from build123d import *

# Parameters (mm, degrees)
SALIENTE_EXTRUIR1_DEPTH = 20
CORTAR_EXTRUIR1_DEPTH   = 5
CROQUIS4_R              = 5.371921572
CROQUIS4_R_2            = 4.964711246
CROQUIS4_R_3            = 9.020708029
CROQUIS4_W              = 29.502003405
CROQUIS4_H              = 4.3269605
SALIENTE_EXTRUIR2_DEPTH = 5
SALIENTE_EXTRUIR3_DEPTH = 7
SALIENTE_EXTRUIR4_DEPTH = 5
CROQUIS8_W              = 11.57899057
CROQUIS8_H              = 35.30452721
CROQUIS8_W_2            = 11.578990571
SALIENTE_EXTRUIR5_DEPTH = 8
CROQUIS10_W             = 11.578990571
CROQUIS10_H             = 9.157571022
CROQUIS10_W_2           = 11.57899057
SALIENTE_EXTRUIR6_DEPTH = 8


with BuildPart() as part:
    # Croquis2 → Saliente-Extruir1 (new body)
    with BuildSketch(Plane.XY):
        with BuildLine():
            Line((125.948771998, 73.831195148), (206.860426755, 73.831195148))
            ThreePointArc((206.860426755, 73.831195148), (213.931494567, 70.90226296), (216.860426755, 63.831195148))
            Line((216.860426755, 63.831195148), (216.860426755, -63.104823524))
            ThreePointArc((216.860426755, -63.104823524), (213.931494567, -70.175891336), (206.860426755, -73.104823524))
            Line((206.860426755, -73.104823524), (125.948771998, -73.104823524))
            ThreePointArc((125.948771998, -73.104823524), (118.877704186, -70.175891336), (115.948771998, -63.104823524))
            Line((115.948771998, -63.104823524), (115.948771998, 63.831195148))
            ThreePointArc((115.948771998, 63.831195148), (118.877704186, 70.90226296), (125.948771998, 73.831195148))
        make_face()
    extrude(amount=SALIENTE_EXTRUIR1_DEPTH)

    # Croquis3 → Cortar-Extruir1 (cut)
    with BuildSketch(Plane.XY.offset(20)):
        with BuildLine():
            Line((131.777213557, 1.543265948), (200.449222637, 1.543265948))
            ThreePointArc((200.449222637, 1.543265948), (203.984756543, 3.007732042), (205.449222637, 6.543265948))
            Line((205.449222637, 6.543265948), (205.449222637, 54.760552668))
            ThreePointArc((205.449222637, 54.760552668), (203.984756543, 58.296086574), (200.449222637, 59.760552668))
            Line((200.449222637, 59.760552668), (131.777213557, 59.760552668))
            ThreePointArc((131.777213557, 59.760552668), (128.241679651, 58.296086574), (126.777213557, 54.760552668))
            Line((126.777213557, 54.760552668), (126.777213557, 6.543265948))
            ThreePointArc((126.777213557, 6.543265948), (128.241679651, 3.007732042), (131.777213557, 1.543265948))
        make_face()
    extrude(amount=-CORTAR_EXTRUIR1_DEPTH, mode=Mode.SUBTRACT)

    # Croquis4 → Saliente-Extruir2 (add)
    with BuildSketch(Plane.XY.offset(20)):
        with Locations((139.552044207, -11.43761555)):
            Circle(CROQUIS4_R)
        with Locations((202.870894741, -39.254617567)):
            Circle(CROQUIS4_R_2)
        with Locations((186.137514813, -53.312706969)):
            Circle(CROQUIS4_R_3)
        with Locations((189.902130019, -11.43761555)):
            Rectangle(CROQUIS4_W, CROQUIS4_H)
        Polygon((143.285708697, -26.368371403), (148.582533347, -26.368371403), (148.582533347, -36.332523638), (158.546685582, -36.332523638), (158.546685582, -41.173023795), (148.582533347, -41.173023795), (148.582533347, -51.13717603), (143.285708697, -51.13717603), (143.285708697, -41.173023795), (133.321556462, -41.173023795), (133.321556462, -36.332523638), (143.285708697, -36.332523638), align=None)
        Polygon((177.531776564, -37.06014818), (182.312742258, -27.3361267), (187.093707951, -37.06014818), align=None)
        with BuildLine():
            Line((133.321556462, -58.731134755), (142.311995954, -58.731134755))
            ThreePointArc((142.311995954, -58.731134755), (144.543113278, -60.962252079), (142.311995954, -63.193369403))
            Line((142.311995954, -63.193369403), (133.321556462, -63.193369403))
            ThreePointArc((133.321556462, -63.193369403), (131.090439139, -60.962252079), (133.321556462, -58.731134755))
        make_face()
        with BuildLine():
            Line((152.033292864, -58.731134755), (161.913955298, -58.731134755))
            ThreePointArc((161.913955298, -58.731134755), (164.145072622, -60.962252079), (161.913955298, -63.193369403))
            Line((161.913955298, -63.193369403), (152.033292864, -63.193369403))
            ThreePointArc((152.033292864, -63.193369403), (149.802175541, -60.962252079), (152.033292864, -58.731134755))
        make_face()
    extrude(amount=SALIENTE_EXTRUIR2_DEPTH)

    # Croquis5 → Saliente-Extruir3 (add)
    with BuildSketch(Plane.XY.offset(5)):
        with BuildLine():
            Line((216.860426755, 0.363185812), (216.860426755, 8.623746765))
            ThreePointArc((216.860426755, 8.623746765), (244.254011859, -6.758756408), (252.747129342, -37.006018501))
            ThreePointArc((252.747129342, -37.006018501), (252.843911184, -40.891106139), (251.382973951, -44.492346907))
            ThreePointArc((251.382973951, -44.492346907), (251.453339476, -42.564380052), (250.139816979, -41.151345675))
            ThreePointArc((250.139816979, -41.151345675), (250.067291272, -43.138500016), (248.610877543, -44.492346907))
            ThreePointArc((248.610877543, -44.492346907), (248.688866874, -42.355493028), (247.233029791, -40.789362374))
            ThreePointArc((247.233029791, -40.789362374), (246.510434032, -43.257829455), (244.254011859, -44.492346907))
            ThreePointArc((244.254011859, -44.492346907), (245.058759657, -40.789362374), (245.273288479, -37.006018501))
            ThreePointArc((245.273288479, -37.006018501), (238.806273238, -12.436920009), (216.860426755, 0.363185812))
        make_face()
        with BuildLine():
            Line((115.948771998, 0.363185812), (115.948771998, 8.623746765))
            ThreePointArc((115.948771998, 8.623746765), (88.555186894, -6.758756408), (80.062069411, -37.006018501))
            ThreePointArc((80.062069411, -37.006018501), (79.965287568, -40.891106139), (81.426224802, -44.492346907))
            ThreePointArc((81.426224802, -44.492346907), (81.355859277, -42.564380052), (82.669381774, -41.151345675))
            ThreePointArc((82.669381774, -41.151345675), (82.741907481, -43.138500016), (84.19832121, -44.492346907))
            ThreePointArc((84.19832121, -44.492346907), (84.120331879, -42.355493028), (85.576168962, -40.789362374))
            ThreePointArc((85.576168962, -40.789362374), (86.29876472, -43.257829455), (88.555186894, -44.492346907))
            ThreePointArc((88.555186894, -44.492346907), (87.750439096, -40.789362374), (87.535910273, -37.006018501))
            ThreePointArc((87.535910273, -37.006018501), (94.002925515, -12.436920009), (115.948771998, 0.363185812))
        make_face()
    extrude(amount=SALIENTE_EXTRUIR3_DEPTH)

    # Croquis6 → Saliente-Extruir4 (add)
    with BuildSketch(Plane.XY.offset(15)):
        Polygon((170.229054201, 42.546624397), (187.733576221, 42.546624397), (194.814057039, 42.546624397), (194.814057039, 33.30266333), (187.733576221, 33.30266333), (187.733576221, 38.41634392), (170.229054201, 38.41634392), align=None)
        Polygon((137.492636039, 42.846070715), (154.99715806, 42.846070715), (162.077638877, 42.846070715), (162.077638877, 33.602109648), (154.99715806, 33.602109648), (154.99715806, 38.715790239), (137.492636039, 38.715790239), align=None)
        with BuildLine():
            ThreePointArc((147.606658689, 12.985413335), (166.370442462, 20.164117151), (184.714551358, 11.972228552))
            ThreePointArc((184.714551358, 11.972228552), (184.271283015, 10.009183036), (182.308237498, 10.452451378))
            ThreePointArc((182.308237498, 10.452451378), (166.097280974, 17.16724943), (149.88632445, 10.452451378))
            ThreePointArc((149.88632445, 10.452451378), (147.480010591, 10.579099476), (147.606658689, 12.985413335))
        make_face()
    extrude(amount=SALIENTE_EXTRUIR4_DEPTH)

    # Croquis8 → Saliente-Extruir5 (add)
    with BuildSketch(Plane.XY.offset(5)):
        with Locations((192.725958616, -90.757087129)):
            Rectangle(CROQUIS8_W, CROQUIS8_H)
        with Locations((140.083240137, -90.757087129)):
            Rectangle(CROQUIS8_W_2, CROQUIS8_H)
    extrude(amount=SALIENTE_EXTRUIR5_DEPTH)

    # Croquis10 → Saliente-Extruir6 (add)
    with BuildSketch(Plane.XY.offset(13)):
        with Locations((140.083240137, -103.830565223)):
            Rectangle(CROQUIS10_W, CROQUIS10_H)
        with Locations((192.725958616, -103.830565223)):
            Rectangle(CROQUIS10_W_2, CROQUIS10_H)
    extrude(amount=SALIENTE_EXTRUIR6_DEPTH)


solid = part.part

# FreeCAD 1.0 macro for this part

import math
import FreeCAD as App
import Part
import Sketcher


def add_polygon(sketch, points):
    """Adds a closed chain of lines whose ends are joined by coincident constraints."""
    first, n = sketch.GeometryCount, len(points)
    for a, b in zip(points, points[1:] + points[:1]):
        sketch.addGeometry(Part.LineSegment(App.Vector(*a, 0), App.Vector(*b, 0)), False)
    for i in range(n):
        sketch.addConstraint(Sketcher.Constraint("Coincident", first + i, 2, first + (i + 1) % n, 1))

doc = App.newDocument("Part")
body = doc.addObject("PartDesign::Body", "Body")

sketch1 = body.newObject("Sketcher::SketchObject", "Sketch")
sketch1.AttachmentSupport = (doc.getObject("XY_Plane"), [""])
sketch1.MapMode = "FlatFace"
sketch1.addGeometry(Part.LineSegment(App.Vector(207, 74, 0), App.Vector(126, 74, 0)), False)
sketch1.addGeometry(Part.ArcOfCircle(Part.Circle(App.Vector(126, 64, 0), App.Vector(0, 0, 1), 10), math.radians(90), math.radians(180)), False)
sketch1.addGeometry(Part.LineSegment(App.Vector(116, 64, 0), App.Vector(116, -63, 0)), False)
sketch1.addGeometry(Part.ArcOfCircle(Part.Circle(App.Vector(126, -63, 0), App.Vector(0, 0, 1), 10), math.radians(180), math.radians(270)), False)
sketch1.addGeometry(Part.LineSegment(App.Vector(126, -73, 0), App.Vector(207, -73, 0)), False)
sketch1.addGeometry(Part.ArcOfCircle(Part.Circle(App.Vector(207, -63, 0), App.Vector(0, 0, 1), 10), math.radians(-90), math.radians(0)), False)
sketch1.addGeometry(Part.LineSegment(App.Vector(217, -63, 0), App.Vector(217, 64, 0)), False)
sketch1.addGeometry(Part.ArcOfCircle(Part.Circle(App.Vector(207, 64, 0), App.Vector(0, 0, 1), 10), math.radians(0), math.radians(90)), False)
sketch1.addConstraint(Sketcher.Constraint("Tangent", 0, 2, 1, 1))
sketch1.addConstraint(Sketcher.Constraint("Tangent", 1, 2, 2, 1))
sketch1.addConstraint(Sketcher.Constraint("Tangent", 2, 2, 3, 1))
sketch1.addConstraint(Sketcher.Constraint("Tangent", 3, 2, 4, 1))
sketch1.addConstraint(Sketcher.Constraint("Tangent", 4, 2, 5, 1))
sketch1.addConstraint(Sketcher.Constraint("Tangent", 5, 2, 6, 1))
sketch1.addConstraint(Sketcher.Constraint("Tangent", 6, 2, 7, 1))
sketch1.addConstraint(Sketcher.Constraint("Tangent", 7, 2, 0, 1))
sketch1.addConstraint(Sketcher.Constraint("Horizontal", 0))
sketch1.addConstraint(Sketcher.Constraint("Vertical", 2))
sketch1.addConstraint(Sketcher.Constraint("Horizontal", 4))
sketch1.addConstraint(Sketcher.Constraint("Vertical", 6))
sketch1.addConstraint(Sketcher.Constraint("Equal", 1, 3))
sketch1.addConstraint(Sketcher.Constraint("Equal", 3, 5))
sketch1.addConstraint(Sketcher.Constraint("Equal", 5, 7))
sketch1.addConstraint(Sketcher.Constraint("Radius", 1, 10.0))
sketch1.addConstraint(Sketcher.Constraint("DistanceY", 2, 2, 2, 1, 126.936019))
sketch1.addConstraint(Sketcher.Constraint("DistanceX", 0, 2, 0, 1, 80.911655))
sketch1.addConstraint(Sketcher.Constraint("DistanceX", -1, 1, 1, 3, 125.948772))
sketch1.addConstraint(Sketcher.Constraint("DistanceY", -1, 1, 1, 3, 63.831195))
pad1 = body.newObject("PartDesign::Pad", "Pad")
pad1.Profile = sketch1
pad1.Length = 20

sketch2 = body.newObject("Sketcher::SketchObject", "Sketch001")
sketch2.AttachmentSupport = (doc.getObject("XY_Plane"), [""])
sketch2.MapMode = "FlatFace"
sketch2.AttachmentOffset = App.Placement(App.Vector(0, 0, 20), App.Rotation())
sketch2.addGeometry(Part.LineSegment(App.Vector(132, 2, 0), App.Vector(200, 2, 0)), False)
sketch2.addGeometry(Part.ArcOfCircle(Part.Circle(App.Vector(200, 7, 0), App.Vector(0, 0, 1), 5), math.radians(-90), math.radians(0)), False)
sketch2.addGeometry(Part.LineSegment(App.Vector(205, 7, 0), App.Vector(205, 55, 0)), False)
sketch2.addGeometry(Part.ArcOfCircle(Part.Circle(App.Vector(200, 55, 0), App.Vector(0, 0, 1), 5), math.radians(0), math.radians(90)), False)
sketch2.addGeometry(Part.LineSegment(App.Vector(200, 60, 0), App.Vector(132, 60, 0)), False)
sketch2.addGeometry(Part.ArcOfCircle(Part.Circle(App.Vector(132, 55, 0), App.Vector(0, 0, 1), 5), math.radians(90), math.radians(180)), False)
sketch2.addGeometry(Part.LineSegment(App.Vector(127, 55, 0), App.Vector(127, 7, 0)), False)
sketch2.addGeometry(Part.ArcOfCircle(Part.Circle(App.Vector(132, 7, 0), App.Vector(0, 0, 1), 5), math.radians(180), math.radians(270)), False)
sketch2.addConstraint(Sketcher.Constraint("Tangent", 0, 2, 1, 1))
sketch2.addConstraint(Sketcher.Constraint("Tangent", 1, 2, 2, 1))
sketch2.addConstraint(Sketcher.Constraint("Tangent", 2, 2, 3, 1))
sketch2.addConstraint(Sketcher.Constraint("Tangent", 3, 2, 4, 1))
sketch2.addConstraint(Sketcher.Constraint("Tangent", 4, 2, 5, 1))
sketch2.addConstraint(Sketcher.Constraint("Tangent", 5, 2, 6, 1))
sketch2.addConstraint(Sketcher.Constraint("Tangent", 6, 2, 7, 1))
sketch2.addConstraint(Sketcher.Constraint("Tangent", 7, 2, 0, 1))
sketch2.addConstraint(Sketcher.Constraint("Horizontal", 0))
sketch2.addConstraint(Sketcher.Constraint("Vertical", 2))
sketch2.addConstraint(Sketcher.Constraint("Horizontal", 4))
sketch2.addConstraint(Sketcher.Constraint("Vertical", 6))
sketch2.addConstraint(Sketcher.Constraint("Equal", 1, 3))
sketch2.addConstraint(Sketcher.Constraint("Equal", 3, 5))
sketch2.addConstraint(Sketcher.Constraint("Equal", 5, 7))
sketch2.addConstraint(Sketcher.Constraint("Radius", 1, 5.0))
sketch2.addConstraint(Sketcher.Constraint("DistanceX", 0, 1, 0, 2, 68.672009))
sketch2.addConstraint(Sketcher.Constraint("DistanceY", 2, 1, 2, 2, 48.217287))
sketch2.addConstraint(Sketcher.Constraint("DistanceX", -1, 1, 1, 3, 200.449223))
sketch2.addConstraint(Sketcher.Constraint("DistanceY", -1, 1, 1, 3, 6.543266))
pocket1 = body.newObject("PartDesign::Pocket", "Pocket")
pocket1.Profile = sketch2
pocket1.Length = 5

sketch3 = body.newObject("Sketcher::SketchObject", "Sketch002")
sketch3.AttachmentSupport = (doc.getObject("XY_Plane"), [""])
sketch3.MapMode = "FlatFace"
sketch3.AttachmentOffset = App.Placement(App.Vector(0, 0, 20), App.Rotation())
sketch3.addGeometry(Part.Circle(App.Vector(139.6, -11.4, 0), App.Vector(0, 0, 1), 5.4), False)
sketch3.addGeometry(Part.Circle(App.Vector(202.9, -39.3, 0), App.Vector(0, 0, 1), 5), False)
sketch3.addGeometry(Part.Circle(App.Vector(186.1, -53.3, 0), App.Vector(0, 0, 1), 9), False)
add_polygon(sketch3, [(175.2, -9.3), (175.2, -13.6), (204.7, -13.6), (204.7, -9.3)])
add_polygon(sketch3, [(148.6, -26.4), (143.3, -26.4), (143.3, -36.3), (133.3, -36.3), (133.3, -41.2), (143.3, -41.2), (143.3, -51.1), (148.6, -51.1), (148.6, -41.2), (158.5, -41.2), (158.5, -36.3), (148.6, -36.3)])
add_polygon(sketch3, [(182.3, -27.3), (177.5, -37.1), (187.1, -37.1)])
sketch3.addGeometry(Part.LineSegment(App.Vector(142.3, -58.7, 0), App.Vector(133.3, -58.7, 0)), False)
sketch3.addGeometry(Part.ArcOfCircle(Part.Circle(App.Vector(133.3, -61, 0), App.Vector(0, 0, 1), 2.2), math.radians(90), math.radians(270)), False)
sketch3.addGeometry(Part.LineSegment(App.Vector(133.3, -63.2, 0), App.Vector(142.3, -63.2, 0)), False)
sketch3.addGeometry(Part.ArcOfCircle(Part.Circle(App.Vector(142.3, -61, 0), App.Vector(0, 0, 1), 2.2), math.radians(-90), math.radians(90)), False)
sketch3.addGeometry(Part.LineSegment(App.Vector(161.9, -58.7, 0), App.Vector(152, -58.7, 0)), False)
sketch3.addGeometry(Part.ArcOfCircle(Part.Circle(App.Vector(152, -61, 0), App.Vector(0, 0, 1), 2.2), math.radians(90), math.radians(270)), False)
sketch3.addGeometry(Part.LineSegment(App.Vector(152, -63.2, 0), App.Vector(161.9, -63.2, 0)), False)
sketch3.addGeometry(Part.ArcOfCircle(Part.Circle(App.Vector(161.9, -61, 0), App.Vector(0, 0, 1), 2.2), math.radians(-90), math.radians(90)), False)
sketch3.addConstraint(Sketcher.Constraint("Tangent", 22, 2, 23, 1))
sketch3.addConstraint(Sketcher.Constraint("Tangent", 23, 2, 24, 1))
sketch3.addConstraint(Sketcher.Constraint("Tangent", 24, 2, 25, 1))
sketch3.addConstraint(Sketcher.Constraint("Tangent", 25, 2, 22, 1))
sketch3.addConstraint(Sketcher.Constraint("Tangent", 26, 2, 27, 1))
sketch3.addConstraint(Sketcher.Constraint("Tangent", 27, 2, 28, 1))
sketch3.addConstraint(Sketcher.Constraint("Tangent", 28, 2, 29, 1))
sketch3.addConstraint(Sketcher.Constraint("Tangent", 29, 2, 26, 1))
sketch3.addConstraint(Sketcher.Constraint("Vertical", 3))
sketch3.addConstraint(Sketcher.Constraint("Horizontal", 4))
sketch3.addConstraint(Sketcher.Constraint("Vertical", 5))
sketch3.addConstraint(Sketcher.Constraint("Horizontal", 6))
sketch3.addConstraint(Sketcher.Constraint("Horizontal", 7))
sketch3.addConstraint(Sketcher.Constraint("Vertical", 8))
sketch3.addConstraint(Sketcher.Constraint("Horizontal", 9))
sketch3.addConstraint(Sketcher.Constraint("Vertical", 10))
sketch3.addConstraint(Sketcher.Constraint("Horizontal", 11))
sketch3.addConstraint(Sketcher.Constraint("Vertical", 12))
sketch3.addConstraint(Sketcher.Constraint("Horizontal", 13))
sketch3.addConstraint(Sketcher.Constraint("Vertical", 14))
sketch3.addConstraint(Sketcher.Constraint("Horizontal", 15))
sketch3.addConstraint(Sketcher.Constraint("Vertical", 16))
sketch3.addConstraint(Sketcher.Constraint("Horizontal", 17))
sketch3.addConstraint(Sketcher.Constraint("Vertical", 18))
sketch3.addConstraint(Sketcher.Constraint("Horizontal", 20))
sketch3.addConstraint(Sketcher.Constraint("Horizontal", 22))
sketch3.addConstraint(Sketcher.Constraint("Horizontal", 24))
sketch3.addConstraint(Sketcher.Constraint("Horizontal", 26))
sketch3.addConstraint(Sketcher.Constraint("Horizontal", 28))
sketch3.addConstraint(Sketcher.Constraint("Equal", 25, 27))
sketch3.addConstraint(Sketcher.Constraint("Horizontal", 25, 3, 27, 3))
sketch3.addConstraint(Sketcher.Constraint("Horizontal", 11, 2, 14, 2))
sketch3.addConstraint(Sketcher.Constraint("Horizontal", 9, 2, 16, 2))
sketch3.addConstraint(Sketcher.Constraint("Vertical", 23, 3, 9, 2))
sketch3.addConstraint(Sketcher.Constraint("Vertical", 8, 2, 11, 2))
sketch3.addConstraint(Sketcher.Constraint("Vertical", 14, 2, 17, 2))
sketch3.addConstraint(Sketcher.Constraint("Equal", 11, 15))
sketch3.addConstraint(Sketcher.Constraint("Equal", 17, 8))
sketch3.addConstraint(Sketcher.Constraint("Equal", 8, 12))
sketch3.addConstraint(Sketcher.Constraint("Equal", 19, 21))
sketch3.addConstraint(Sketcher.Constraint("Diameter", 0, 10.743843))
sketch3.addConstraint(Sketcher.Constraint("Diameter", 1, 9.929422))
sketch3.addConstraint(Sketcher.Constraint("Diameter", 2, 18.041416))
sketch3.addConstraint(Sketcher.Constraint("DistanceY", 10, 2, 10, 1, 4.8405))
sketch3.addConstraint(Sketcher.Constraint("Radius", 23, 2.231117))
sketch3.addConstraint(Sketcher.Constraint("DistanceX", 20, 1, 20, 2, 9.561931))
sketch3.addConstraint(Sketcher.Constraint("DistanceX", 22, 2, 22, 1, 8.990439))
sketch3.addConstraint(Sketcher.Constraint("DistanceY", 3, 2, 3, 1, 4.326961))
sketch3.addConstraint(Sketcher.Constraint("DistanceX", 25, 3, 1, 3, 60.558899))
sketch3.addConstraint(Sketcher.Constraint("DistanceX", 27, 3, 1, 3, 50.837602))
sketch3.addConstraint(Sketcher.Constraint("DistanceX", 23, 3, 29, 3, 28.592399))
sketch3.addConstraint(Sketcher.Constraint("DistanceX", 4, 1, 4, 2, 29.502003))
sketch3.addConstraint(Sketcher.Constraint("DistanceX", 7, 2, 7, 1, 5.296825))
sketch3.addConstraint(Sketcher.Constraint("DistanceX", 9, 2, 9, 1, 9.964152))
sketch3.addConstraint(Sketcher.Constraint("DistanceX", -1, 1, 3, 2, 175.151128))
sketch3.addConstraint(Sketcher.Constraint("DistanceX", -1, 1, 7, 2, 143.285709))
sketch3.addConstraint(Sketcher.Constraint("DistanceY", 7, 2, -1, 1, 26.368371))
sketch3.addConstraint(Sketcher.Constraint("DistanceY", 19, 2, -1, 1, 37.060148))
sketch3.addConstraint(Sketcher.Constraint("DistanceY", 23, 2, -1, 1, 63.193369))
sketch3.addConstraint(Sketcher.Constraint("DistanceX", 0, 3, 1, 3, 63.318851))
sketch3.addConstraint(Sketcher.Constraint("DistanceX", 2, 3, 1, 3, 16.73338))
sketch3.addConstraint(Sketcher.Constraint("DistanceY", 2, 3, 1, 3, 14.058089))
sketch3.addConstraint(Sketcher.Constraint("DistanceY", 2, 3, 0, 3, 41.875091))
sketch3.addConstraint(Sketcher.Constraint("DistanceY", 3, 2, 0, 3, 2.16348))
sketch3.addConstraint(Sketcher.Constraint("DistanceY", 8, 2, 0, 3, 24.894908))
sketch3.addConstraint(Sketcher.Constraint("DistanceX", 19, 2, 2, 3, 8.605738))
sketch3.addConstraint(Sketcher.Constraint("DistanceY", 20, 2, 21, 2, 9.724021))
pad2 = body.newObject("PartDesign::Pad", "Pad001")
pad2.Profile = sketch3
pad2.Length = 5

sketch4 = body.newObject("Sketcher::SketchObject", "Sketch003")
sketch4.AttachmentSupport = (doc.getObject("XY_Plane"), [""])
sketch4.MapMode = "FlatFace"
sketch4.AttachmentOffset = App.Placement(App.Vector(0, 0, 5), App.Rotation())
sketch4.addGeometry(Part.LineSegment(App.Vector(216.9, 8.6, 0), App.Vector(216.9, 0.4, 0)), False)
sketch4.addGeometry(Part.ArcOfCircle(Part.Circle(App.Vector(212.4, -32.5, 0), App.Vector(0, 0, 1), 33.2), math.radians(-8), math.radians(82)), False)
sketch4.addGeometry(Part.ArcOfCircle(Part.Circle(App.Vector(221.2, -37.5, 0), App.Vector(0, 0, 1), 24.1), math.radians(-16.77), math.radians(1.26)), False)
sketch4.addGeometry(Part.ArcOfCircle(Part.Circle(App.Vector(243.9, -41.2, 0), App.Vector(0, 0, 1), 3.4), math.radians(-84), math.radians(6)), False)
sketch4.addGeometry(Part.ArcOfCircle(Part.Circle(App.Vector(246.1, -43.3, 0), App.Vector(0, 0, 1), 2.8), math.radians(-25), math.radians(65)), False)
sketch4.addGeometry(Part.ArcOfCircle(Part.Circle(App.Vector(247.7, -42.1, 0), App.Vector(0, 0, 1), 2.6), math.radians(-70), math.radians(20)), False)
sketch4.addGeometry(Part.ArcOfCircle(Part.Circle(App.Vector(249.1, -43.4, 0), App.Vector(0, 0, 1), 2.5), math.radians(-25), math.radians(65)), False)
sketch4.addGeometry(Part.ArcOfCircle(Part.Circle(App.Vector(243.5, -39.2, 0), App.Vector(0, 0, 1), 9.5), math.radians(-34), math.radians(13)), False)
sketch4.addGeometry(Part.ArcOfCircle(Part.Circle(App.Vector(212, -32.1, 0), App.Vector(0, 0, 1), 41), math.radians(-7), math.radians(83)), False)
sketch4.addGeometry(Part.LineSegment(App.Vector(115.9, 0.4, 0), App.Vector(115.9, 8.6, 0)), False)
sketch4.addGeometry(Part.ArcOfCircle(Part.Circle(App.Vector(120.8, -32.1, 0), App.Vector(0, 0, 1), 41), math.radians(97), math.radians(187)), False)
sketch4.addGeometry(Part.ArcOfCircle(Part.Circle(App.Vector(89.3, -39.2, 0), App.Vector(0, 0, 1), 9.5), math.radians(167), math.radians(214)), False)
sketch4.addGeometry(Part.ArcOfCircle(Part.Circle(App.Vector(83.7, -43.4, 0), App.Vector(0, 0, 1), 2.5), math.radians(115), math.radians(205)), False)
sketch4.addGeometry(Part.ArcOfCircle(Part.Circle(App.Vector(85.1, -42.1, 0), App.Vector(0, 0, 1), 2.6), math.radians(160), math.radians(250)), False)
sketch4.addGeometry(Part.ArcOfCircle(Part.Circle(App.Vector(86.7, -43.3, 0), App.Vector(0, 0, 1), 2.8), math.radians(115), math.radians(205)), False)
sketch4.addGeometry(Part.ArcOfCircle(Part.Circle(App.Vector(88.9, -41.2, 0), App.Vector(0, 0, 1), 3.4), math.radians(174), math.radians(264)), False)
sketch4.addGeometry(Part.ArcOfCircle(Part.Circle(App.Vector(111.6, -37.5, 0), App.Vector(0, 0, 1), 24.1), math.radians(178.74), math.radians(196.77)), False)
sketch4.addGeometry(Part.ArcOfCircle(Part.Circle(App.Vector(120.4, -32.5, 0), App.Vector(0, 0, 1), 33.2), math.radians(98), math.radians(188)), False)
sketch4.addConstraint(Sketcher.Constraint("Coincident", 0, 2, 1, 2))
sketch4.addConstraint(Sketcher.Constraint("Coincident", 1, 1, 2, 2))
sketch4.addConstraint(Sketcher.Constraint("Coincident", 2, 1, 3, 1))
sketch4.addConstraint(Sketcher.Constraint("Coincident", 3, 2, 4, 2))
sketch4.addConstraint(Sketcher.Constraint("Coincident", 4, 1, 5, 1))
sketch4.addConstraint(Sketcher.Constraint("Coincident", 5, 2, 6, 2))
sketch4.addConstraint(Sketcher.Constraint("Coincident", 6, 1, 7, 1))
sketch4.addConstraint(Sketcher.Constraint("Coincident", 7, 2, 8, 1))
sketch4.addConstraint(Sketcher.Constraint("Coincident", 8, 2, 0, 1))
sketch4.addConstraint(Sketcher.Constraint("Coincident", 9, 2, 10, 1))
sketch4.addConstraint(Sketcher.Constraint("Coincident", 10, 2, 11, 1))
sketch4.addConstraint(Sketcher.Constraint("Coincident", 11, 2, 12, 2))
sketch4.addConstraint(Sketcher.Constraint("Coincident", 12, 1, 13, 1))
sketch4.addConstraint(Sketcher.Constraint("Coincident", 13, 2, 14, 2))
sketch4.addConstraint(Sketcher.Constraint("Coincident", 14, 1, 15, 1))
sketch4.addConstraint(Sketcher.Constraint("Coincident", 15, 2, 16, 2))
sketch4.addConstraint(Sketcher.Constraint("Coincident", 16, 1, 17, 2))
sketch4.addConstraint(Sketcher.Constraint("Coincident", 17, 1, 9, 1))
sketch4.addConstraint(Sketcher.Constraint("Vertical", 0))
sketch4.addConstraint(Sketcher.Constraint("Vertical", 9))
sketch4.addConstraint(Sketcher.Constraint("Equal", 8, 10))
sketch4.addConstraint(Sketcher.Constraint("Equal", 7, 11))
sketch4.addConstraint(Sketcher.Constraint("Equal", 6, 12))
sketch4.addConstraint(Sketcher.Constraint("Equal", 5, 13))
sketch4.addConstraint(Sketcher.Constraint("Equal", 4, 14))
sketch4.addConstraint(Sketcher.Constraint("Equal", 3, 15))
sketch4.addConstraint(Sketcher.Constraint("Equal", 2, 16))
sketch4.addConstraint(Sketcher.Constraint("Equal", 1, 17))
sketch4.addConstraint(Sketcher.Constraint("Horizontal", 8, 3, 10, 3))
sketch4.addConstraint(Sketcher.Constraint("Horizontal", 7, 3, 11, 3))
sketch4.addConstraint(Sketcher.Constraint("Horizontal", 6, 3, 12, 3))
sketch4.addConstraint(Sketcher.Constraint("Horizontal", 5, 3, 13, 3))
sketch4.addConstraint(Sketcher.Constraint("Horizontal", 4, 3, 14, 3))
sketch4.addConstraint(Sketcher.Constraint("Horizontal", 3, 3, 15, 3))
sketch4.addConstraint(Sketcher.Constraint("Horizontal", 2, 3, 16, 3))
sketch4.addConstraint(Sketcher.Constraint("Horizontal", 1, 3, 17, 3))
sketch4.addConstraint(Sketcher.Constraint("Horizontal", 2, 1, 4, 1))
sketch4.addConstraint(Sketcher.Constraint("Horizontal", 15, 3, 5, 2))
sketch4.addConstraint(Sketcher.Constraint("Horizontal", 4, 1, 6, 1))
sketch4.addConstraint(Sketcher.Constraint("Horizontal", 1, 1, 7, 2))
sketch4.addConstraint(Sketcher.Constraint("Horizontal", 8, 2, 9, 2))
sketch4.addConstraint(Sketcher.Constraint("Horizontal", 7, 2, 10, 2))
sketch4.addConstraint(Sketcher.Constraint("Horizontal", 6, 1, 11, 2))
sketch4.addConstraint(Sketcher.Constraint("Horizontal", 5, 2, 12, 1))
sketch4.addConstraint(Sketcher.Constraint("Horizontal", 11, 2, 13, 2))
sketch4.addConstraint(Sketcher.Constraint("Horizontal", 3, 2, 14, 1))
sketch4.addConstraint(Sketcher.Constraint("Horizontal", 13, 2, 15, 2))
sketch4.addConstraint(Sketcher.Constraint("Horizontal", 10, 2, 16, 1))
sketch4.addConstraint(Sketcher.Constraint("Radius", 1, 33.194489))
sketch4.addConstraint(Sketcher.Constraint("Radius", 5, 2.598071))
sketch4.addConstraint(Sketcher.Constraint("Radius", 8, 41.048331))
sketch4.addConstraint(Sketcher.Constraint("Radius", 2, 24.107054))
sketch4.addConstraint(Sketcher.Constraint("Radius", 3, 3.360554))
sketch4.addConstraint(Sketcher.Constraint("Radius", 4, 2.793793))
sketch4.addConstraint(Sketcher.Constraint("Radius", 6, 2.520687))
sketch4.addConstraint(Sketcher.Constraint("Radius", 7, 9.538693))
sketch4.addConstraint(Sketcher.Constraint("DistanceX", 12, 3, 10, 3, 37.101999))
sketch4.addConstraint(Sketcher.Constraint("DistanceY", 2, 1, 3, 3, 3.341001))
sketch4.addConstraint(Sketcher.Constraint("DistanceX", 3, 3, 3, 2, 3.341001))
sketch4.addConstraint(Sketcher.Constraint("DistanceY", 0, 2, 0, 1, 8.260561))
sketch4.addConstraint(Sketcher.Constraint("DistanceY", 3, 3, 1, 3, 8.623498))
sketch4.addConstraint(Sketcher.Constraint("DistanceY", 4, 3, 5, 3, 1.272402))
sketch4.addConstraint(Sketcher.Constraint("DistanceX", 11, 3, 1, 3, 123.032798))
sketch4.addConstraint(Sketcher.Constraint("DistanceX", 0, 2, 3, 3, 27.031602))
sketch4.addConstraint(Sketcher.Constraint("DistanceX", 3, 2, 7, 2, 5.5141))
sketch4.addConstraint(Sketcher.Constraint("DistanceY", 2, 3, -1, 1, 37.53715))
sketch4.addConstraint(Sketcher.Constraint("DistanceX", -1, 1, 3, 3, 243.892029))
sketch4.addConstraint(Sketcher.Constraint("DistanceX", -1, 1, 4, 3, 246.070461))
sketch4.addConstraint(Sketcher.Constraint("DistanceY", 4, 3, -1, 1, 43.329779))
sketch4.addConstraint(Sketcher.Constraint("DistanceX", -1, 1, 7, 3, 243.459741))
pad3 = body.newObject("PartDesign::Pad", "Pad002")
pad3.Profile = sketch4
pad3.Length = 7

sketch5 = body.newObject("Sketcher::SketchObject", "Sketch004")
sketch5.AttachmentSupport = (doc.getObject("XY_Plane"), [""])
sketch5.MapMode = "FlatFace"
sketch5.AttachmentOffset = App.Placement(App.Vector(0, 0, 15), App.Rotation())
add_polygon(sketch5, [(194.8, 42.5), (170.2, 42.5), (170.2, 38.4), (187.7, 38.4), (187.7, 33.3), (194.8, 33.3)])
add_polygon(sketch5, [(162.1, 42.8), (137.5, 42.8), (137.5, 38.7), (155, 38.7), (155, 33.6), (162.1, 33.6)])
sketch5.addGeometry(Part.ArcOfCircle(Part.Circle(App.Vector(165.7, -6.1, 0), App.Vector(0, 0, 1), 26.2), math.radians(43), math.radians(133)), False)
sketch5.addGeometry(Part.ArcOfCircle(Part.Circle(App.Vector(148.7, 11.7, 0), App.Vector(0, 0, 1), 1.7), math.radians(132), math.radians(312)), False)
sketch5.addGeometry(Part.ArcOfCircle(Part.Circle(App.Vector(166.1, -5.8, 0), App.Vector(0, 0, 1), 22.9), math.radians(45), math.radians(135)), False)
sketch5.addGeometry(Part.ArcOfCircle(Part.Circle(App.Vector(183.5, 11.2, 0), App.Vector(0, 0, 1), 1.4), math.radians(-148), math.radians(32)), False)
sketch5.addConstraint(Sketcher.Constraint("Coincident", 12, 2, 13, 1))
sketch5.addConstraint(Sketcher.Constraint("Coincident", 13, 2, 14, 2))
sketch5.addConstraint(Sketcher.Constraint("Coincident", 14, 1, 15, 1))
sketch5.addConstraint(Sketcher.Constraint("Coincident", 15, 2, 12, 1))
sketch5.addConstraint(Sketcher.Constraint("Horizontal", 0))
sketch5.addConstraint(Sketcher.Constraint("Vertical", 1))
sketch5.addConstraint(Sketcher.Constraint("Horizontal", 2))
sketch5.addConstraint(Sketcher.Constraint("Vertical", 3))
sketch5.addConstraint(Sketcher.Constraint("Horizontal", 4))
sketch5.addConstraint(Sketcher.Constraint("Vertical", 5))
sketch5.addConstraint(Sketcher.Constraint("Horizontal", 6))
sketch5.addConstraint(Sketcher.Constraint("Vertical", 7))
sketch5.addConstraint(Sketcher.Constraint("Horizontal", 8))
sketch5.addConstraint(Sketcher.Constraint("Vertical", 9))
sketch5.addConstraint(Sketcher.Constraint("Horizontal", 10))
sketch5.addConstraint(Sketcher.Constraint("Vertical", 11))
sketch5.addConstraint(Sketcher.Constraint("Horizontal", 13, 2, 14, 1))
sketch5.addConstraint(Sketcher.Constraint("Equal", 0, 6))
sketch5.addConstraint(Sketcher.Constraint("Equal", 2, 8))
sketch5.addConstraint(Sketcher.Constraint("Equal", 1, 7))
sketch5.addConstraint(Sketcher.Constraint("Equal", 3, 9))
sketch5.addConstraint(Sketcher.Constraint("Radius", 12, 26.249021))
sketch5.addConstraint(Sketcher.Constraint("Radius", 15, 1.423031))
sketch5.addConstraint(Sketcher.Constraint("Radius", 13, 1.703876))
sketch5.addConstraint(Sketcher.Constraint("Radius", 14, 22.925755))
sketch5.addConstraint(Sketcher.Constraint("DistanceX", 4, 1, 4, 2, 7.080481))
sketch5.addConstraint(Sketcher.Constraint("DistanceY", 1, 2, 1, 1, 4.13028))
sketch5.addConstraint(Sketcher.Constraint("DistanceY", 3, 2, 3, 1, 5.113681))
sketch5.addConstraint(Sketcher.Constraint("DistanceX", 12, 2, 9, 2, 7.390499))
sketch5.addConstraint(Sketcher.Constraint("DistanceX", 0, 2, 0, 1, 24.585003))
sketch5.addConstraint(Sketcher.Constraint("DistanceX", -1, 1, 13, 3, 148.746492))
sketch5.addConstraint(Sketcher.Constraint("DistanceX", -1, 1, 14, 3, 166.097281))
sketch5.addConstraint(Sketcher.Constraint("DistanceY", -1, 1, 15, 3, 11.21234))
sketch5.addConstraint(Sketcher.Constraint("DistanceY", -1, 1, 6, 2, 42.846071))
sketch5.addConstraint(Sketcher.Constraint("DistanceX", -1, 1, 8, 2, 154.997158))
sketch5.addConstraint(Sketcher.Constraint("DistanceY", -1, 1, 13, 2, 10.452451))
sketch5.addConstraint(Sketcher.Constraint("DistanceX", -1, 1, 15, 2, 184.714551))
sketch5.addConstraint(Sketcher.Constraint("DistanceY", -1, 1, 15, 2, 11.972229))
sketch5.addConstraint(Sketcher.Constraint("DistanceX", 0, 2, 15, 3, 13.28234))
sketch5.addConstraint(Sketcher.Constraint("DistanceY", 14, 3, 0, 2, 48.30513))
pad4 = body.newObject("PartDesign::Pad", "Pad003")
pad4.Profile = sketch5
pad4.Length = 5

sketch6 = body.newObject("Sketcher::SketchObject", "Sketch005")
sketch6.AttachmentSupport = (doc.getObject("XY_Plane"), [""])
sketch6.MapMode = "FlatFace"
sketch6.AttachmentOffset = App.Placement(App.Vector(0, 0, 5), App.Rotation())
add_polygon(sketch6, [(187, -73), (187, -108), (199, -108), (199, -73)])
add_polygon(sketch6, [(134, -73), (134, -108), (146, -108), (146, -73)])
sketch6.addConstraint(Sketcher.Constraint("Vertical", 0))
sketch6.addConstraint(Sketcher.Constraint("Horizontal", 1))
sketch6.addConstraint(Sketcher.Constraint("Vertical", 2))
sketch6.addConstraint(Sketcher.Constraint("Horizontal", 3))
sketch6.addConstraint(Sketcher.Constraint("Vertical", 4))
sketch6.addConstraint(Sketcher.Constraint("Horizontal", 5))
sketch6.addConstraint(Sketcher.Constraint("Vertical", 6))
sketch6.addConstraint(Sketcher.Constraint("Horizontal", 7))
sketch6.addConstraint(Sketcher.Constraint("Horizontal", 1, 2, 4, 2))
sketch6.addConstraint(Sketcher.Constraint("Horizontal", 3, 2, 6, 2))
sketch6.addConstraint(Sketcher.Constraint("Equal", 3, 5))
sketch6.addConstraint(Sketcher.Constraint("DistanceX", 1, 1, 1, 2, 11.578991))
sketch6.addConstraint(Sketcher.Constraint("DistanceY", 0, 2, 0, 1, 35.304527))
sketch6.addConstraint(Sketcher.Constraint("DistanceY", 0, 2, -1, 1, 108.409351))
sketch6.addConstraint(Sketcher.Constraint("DistanceX", 4, 2, 0, 2, 52.642718))
sketch6.addConstraint(Sketcher.Constraint("DistanceX", -1, 1, 0, 2, 186.936463))
pad5 = body.newObject("PartDesign::Pad", "Pad004")
pad5.Profile = sketch6
pad5.Length = 8

sketch7 = body.newObject("Sketcher::SketchObject", "Sketch006")
sketch7.AttachmentSupport = (doc.getObject("XY_Plane"), [""])
sketch7.MapMode = "FlatFace"
sketch7.AttachmentOffset = App.Placement(App.Vector(0, 0, 13), App.Rotation())
add_polygon(sketch7, [(134, -99), (134, -108), (146, -108), (146, -99)])
add_polygon(sketch7, [(187, -99), (187, -108), (199, -108), (199, -99)])
sketch7.addConstraint(Sketcher.Constraint("Vertical", 0))
sketch7.addConstraint(Sketcher.Constraint("Horizontal", 1))
sketch7.addConstraint(Sketcher.Constraint("Vertical", 2))
sketch7.addConstraint(Sketcher.Constraint("Horizontal", 3))
sketch7.addConstraint(Sketcher.Constraint("Vertical", 4))
sketch7.addConstraint(Sketcher.Constraint("Horizontal", 5))
sketch7.addConstraint(Sketcher.Constraint("Vertical", 6))
sketch7.addConstraint(Sketcher.Constraint("Horizontal", 7))
sketch7.addConstraint(Sketcher.Constraint("Horizontal", 1, 2, 4, 2))
sketch7.addConstraint(Sketcher.Constraint("Horizontal", 3, 2, 6, 2))
sketch7.addConstraint(Sketcher.Constraint("Equal", 3, 5))
sketch7.addConstraint(Sketcher.Constraint("DistanceX", 1, 1, 1, 2, 11.578991))
sketch7.addConstraint(Sketcher.Constraint("DistanceY", 0, 2, 0, 1, 9.157571))
sketch7.addConstraint(Sketcher.Constraint("DistanceY", 0, 2, -1, 1, 108.409351))
sketch7.addConstraint(Sketcher.Constraint("DistanceX", 0, 2, 4, 2, 52.642718))
sketch7.addConstraint(Sketcher.Constraint("DistanceX", -1, 1, 0, 2, 134.293745))
pad6 = body.newObject("PartDesign::Pad", "Pad005")
pad6.Profile = sketch7
pad6.Length = 8

doc.recompute()
